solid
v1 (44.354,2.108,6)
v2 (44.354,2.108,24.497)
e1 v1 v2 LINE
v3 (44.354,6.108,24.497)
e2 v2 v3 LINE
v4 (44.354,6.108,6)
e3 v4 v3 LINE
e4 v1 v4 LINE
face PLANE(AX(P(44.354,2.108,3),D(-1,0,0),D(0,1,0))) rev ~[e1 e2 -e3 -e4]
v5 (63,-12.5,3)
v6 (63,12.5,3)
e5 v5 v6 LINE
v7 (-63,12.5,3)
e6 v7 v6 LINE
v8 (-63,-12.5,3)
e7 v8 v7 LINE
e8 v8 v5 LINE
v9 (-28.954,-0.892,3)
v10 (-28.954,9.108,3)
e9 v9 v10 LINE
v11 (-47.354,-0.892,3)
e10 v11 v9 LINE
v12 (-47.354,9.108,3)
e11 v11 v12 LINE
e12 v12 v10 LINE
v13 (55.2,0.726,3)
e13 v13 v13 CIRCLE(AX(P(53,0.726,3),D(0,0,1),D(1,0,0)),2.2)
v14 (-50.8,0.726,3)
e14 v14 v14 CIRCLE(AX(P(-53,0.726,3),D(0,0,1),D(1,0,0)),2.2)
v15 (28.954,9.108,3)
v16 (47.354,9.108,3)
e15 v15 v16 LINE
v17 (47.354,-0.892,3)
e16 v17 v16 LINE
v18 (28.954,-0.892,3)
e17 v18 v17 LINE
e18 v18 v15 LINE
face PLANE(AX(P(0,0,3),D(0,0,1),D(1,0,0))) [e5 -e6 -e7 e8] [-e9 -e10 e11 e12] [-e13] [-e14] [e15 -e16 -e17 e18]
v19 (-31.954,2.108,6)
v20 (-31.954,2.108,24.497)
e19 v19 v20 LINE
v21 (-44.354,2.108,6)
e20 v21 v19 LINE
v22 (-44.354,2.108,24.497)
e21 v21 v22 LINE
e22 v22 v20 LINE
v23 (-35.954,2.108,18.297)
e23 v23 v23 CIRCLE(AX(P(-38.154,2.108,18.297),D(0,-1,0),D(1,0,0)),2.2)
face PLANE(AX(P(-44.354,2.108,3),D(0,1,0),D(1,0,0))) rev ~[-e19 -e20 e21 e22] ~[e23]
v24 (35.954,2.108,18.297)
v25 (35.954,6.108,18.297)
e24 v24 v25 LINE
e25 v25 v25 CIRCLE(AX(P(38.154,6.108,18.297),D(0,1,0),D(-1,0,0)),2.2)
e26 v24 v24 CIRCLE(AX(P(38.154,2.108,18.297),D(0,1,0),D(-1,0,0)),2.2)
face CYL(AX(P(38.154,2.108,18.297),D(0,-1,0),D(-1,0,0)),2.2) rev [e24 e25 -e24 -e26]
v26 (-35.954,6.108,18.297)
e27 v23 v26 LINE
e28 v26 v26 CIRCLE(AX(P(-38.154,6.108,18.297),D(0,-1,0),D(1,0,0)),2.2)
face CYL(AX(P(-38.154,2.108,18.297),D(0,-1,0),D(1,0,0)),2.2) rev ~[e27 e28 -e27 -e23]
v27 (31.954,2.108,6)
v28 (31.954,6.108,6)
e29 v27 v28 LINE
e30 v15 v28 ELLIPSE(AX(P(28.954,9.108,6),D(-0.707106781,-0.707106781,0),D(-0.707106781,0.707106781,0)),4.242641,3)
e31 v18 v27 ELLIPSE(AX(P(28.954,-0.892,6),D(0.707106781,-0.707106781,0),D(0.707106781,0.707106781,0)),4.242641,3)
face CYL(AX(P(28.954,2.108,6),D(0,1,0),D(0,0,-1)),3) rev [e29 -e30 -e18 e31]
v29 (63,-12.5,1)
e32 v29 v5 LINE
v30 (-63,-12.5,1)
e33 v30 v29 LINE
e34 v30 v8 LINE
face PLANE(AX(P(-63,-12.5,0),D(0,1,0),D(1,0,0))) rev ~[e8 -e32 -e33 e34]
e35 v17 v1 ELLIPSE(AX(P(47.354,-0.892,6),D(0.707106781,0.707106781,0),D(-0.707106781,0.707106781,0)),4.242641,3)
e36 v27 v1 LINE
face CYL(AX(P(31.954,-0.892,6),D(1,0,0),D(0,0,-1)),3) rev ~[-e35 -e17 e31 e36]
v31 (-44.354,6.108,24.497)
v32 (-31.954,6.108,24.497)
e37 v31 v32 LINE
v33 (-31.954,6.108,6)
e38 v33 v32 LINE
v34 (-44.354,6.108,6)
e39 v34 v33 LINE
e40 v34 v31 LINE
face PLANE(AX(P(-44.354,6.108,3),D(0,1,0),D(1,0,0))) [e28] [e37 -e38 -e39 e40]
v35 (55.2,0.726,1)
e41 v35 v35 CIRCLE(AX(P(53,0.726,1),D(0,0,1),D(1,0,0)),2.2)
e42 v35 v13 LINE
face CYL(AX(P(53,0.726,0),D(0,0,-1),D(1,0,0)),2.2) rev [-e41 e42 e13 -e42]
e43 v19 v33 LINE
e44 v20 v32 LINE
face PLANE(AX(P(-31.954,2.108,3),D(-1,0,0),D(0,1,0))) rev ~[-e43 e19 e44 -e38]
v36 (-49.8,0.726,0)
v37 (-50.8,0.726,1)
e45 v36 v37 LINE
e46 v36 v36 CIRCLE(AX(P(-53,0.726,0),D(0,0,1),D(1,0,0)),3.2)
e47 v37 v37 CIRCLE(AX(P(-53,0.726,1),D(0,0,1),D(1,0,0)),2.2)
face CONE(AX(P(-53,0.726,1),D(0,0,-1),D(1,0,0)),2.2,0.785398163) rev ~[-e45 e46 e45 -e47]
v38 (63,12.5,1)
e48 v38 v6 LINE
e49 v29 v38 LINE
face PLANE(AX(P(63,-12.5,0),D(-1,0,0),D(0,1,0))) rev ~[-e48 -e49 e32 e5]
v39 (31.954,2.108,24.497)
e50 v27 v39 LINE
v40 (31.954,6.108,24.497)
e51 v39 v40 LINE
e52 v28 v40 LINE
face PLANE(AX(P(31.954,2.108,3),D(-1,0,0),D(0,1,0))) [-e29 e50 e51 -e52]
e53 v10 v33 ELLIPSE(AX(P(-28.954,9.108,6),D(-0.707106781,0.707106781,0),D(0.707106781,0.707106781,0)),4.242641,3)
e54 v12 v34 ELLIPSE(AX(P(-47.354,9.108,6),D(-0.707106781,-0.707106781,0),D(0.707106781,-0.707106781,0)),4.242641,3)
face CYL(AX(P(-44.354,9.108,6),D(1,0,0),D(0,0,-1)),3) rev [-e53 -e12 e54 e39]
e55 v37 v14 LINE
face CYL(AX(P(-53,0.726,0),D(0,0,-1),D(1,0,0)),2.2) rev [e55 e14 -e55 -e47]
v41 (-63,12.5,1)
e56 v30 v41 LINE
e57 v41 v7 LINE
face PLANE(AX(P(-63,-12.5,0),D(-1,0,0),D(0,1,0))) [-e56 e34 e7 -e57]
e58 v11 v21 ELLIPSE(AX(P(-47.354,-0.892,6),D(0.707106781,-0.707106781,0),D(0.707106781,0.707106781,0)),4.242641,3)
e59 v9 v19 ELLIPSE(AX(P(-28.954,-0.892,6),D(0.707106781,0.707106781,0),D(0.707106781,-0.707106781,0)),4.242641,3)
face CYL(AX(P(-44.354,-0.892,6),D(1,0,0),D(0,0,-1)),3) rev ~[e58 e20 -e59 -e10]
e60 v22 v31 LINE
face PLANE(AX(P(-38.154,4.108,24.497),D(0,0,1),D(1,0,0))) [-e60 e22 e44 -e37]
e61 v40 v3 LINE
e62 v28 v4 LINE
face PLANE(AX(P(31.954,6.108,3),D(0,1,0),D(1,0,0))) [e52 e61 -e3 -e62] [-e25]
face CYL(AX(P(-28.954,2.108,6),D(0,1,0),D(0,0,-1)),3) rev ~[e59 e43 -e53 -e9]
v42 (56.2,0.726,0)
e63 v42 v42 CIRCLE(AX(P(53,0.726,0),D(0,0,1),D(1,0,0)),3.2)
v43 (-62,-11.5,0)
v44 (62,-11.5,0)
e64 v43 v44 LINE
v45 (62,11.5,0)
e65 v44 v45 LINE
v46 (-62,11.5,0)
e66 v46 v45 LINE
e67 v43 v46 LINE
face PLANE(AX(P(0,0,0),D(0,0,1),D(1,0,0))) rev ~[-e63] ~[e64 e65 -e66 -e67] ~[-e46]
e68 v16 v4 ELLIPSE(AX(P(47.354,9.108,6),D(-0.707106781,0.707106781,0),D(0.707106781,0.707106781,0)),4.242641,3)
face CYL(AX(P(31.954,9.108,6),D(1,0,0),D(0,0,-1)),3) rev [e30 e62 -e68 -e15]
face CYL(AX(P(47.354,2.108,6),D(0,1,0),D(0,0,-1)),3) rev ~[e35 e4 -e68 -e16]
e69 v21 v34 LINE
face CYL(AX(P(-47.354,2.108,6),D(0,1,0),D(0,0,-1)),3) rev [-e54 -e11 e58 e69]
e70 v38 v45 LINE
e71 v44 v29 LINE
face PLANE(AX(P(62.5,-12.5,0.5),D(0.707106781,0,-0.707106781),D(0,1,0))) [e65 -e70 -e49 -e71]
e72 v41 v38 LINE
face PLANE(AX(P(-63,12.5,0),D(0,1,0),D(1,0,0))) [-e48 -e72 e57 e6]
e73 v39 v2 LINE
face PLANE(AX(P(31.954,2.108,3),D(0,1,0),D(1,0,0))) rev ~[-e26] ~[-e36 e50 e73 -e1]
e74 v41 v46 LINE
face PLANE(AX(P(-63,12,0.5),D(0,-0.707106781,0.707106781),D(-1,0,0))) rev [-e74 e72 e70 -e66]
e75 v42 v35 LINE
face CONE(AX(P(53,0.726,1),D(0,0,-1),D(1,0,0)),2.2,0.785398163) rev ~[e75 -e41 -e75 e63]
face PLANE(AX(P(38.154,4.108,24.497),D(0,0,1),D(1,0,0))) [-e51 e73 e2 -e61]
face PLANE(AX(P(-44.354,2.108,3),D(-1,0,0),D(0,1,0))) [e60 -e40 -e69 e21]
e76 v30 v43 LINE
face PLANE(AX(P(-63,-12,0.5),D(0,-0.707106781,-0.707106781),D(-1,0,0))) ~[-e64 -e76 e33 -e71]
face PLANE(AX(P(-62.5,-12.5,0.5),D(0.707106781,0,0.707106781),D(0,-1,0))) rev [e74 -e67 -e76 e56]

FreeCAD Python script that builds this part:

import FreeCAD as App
import Part
import Sketcher
from FreeCAD import Vector


def edges_at(feature, points):
    """Names of the edges that pass closest to the given points."""
    edges = feature.Shape.Edges
    near = lambda p: min(range(len(edges)), key=lambda i: edges[i].distToShape(Part.Vertex(*p))[0])
    return sorted({f"Edge{near(p) + 1}" for p in points})

doc = App.newDocument("Part")
body = doc.addObject("PartDesign::Body", "Body")

# Sketch on XY plane
sketch1 = body.newObject("Sketcher::SketchObject", "Sketch")
sketch1.AttachmentSupport = (doc.getObject("XY_Plane"), [""])
sketch1.MapMode = "FlatFace"
sketch1.addGeometry(Part.LineSegment(Vector(-63, 12.5, 0), Vector(-63, -12.5, 0)), False)
sketch1.addGeometry(Part.LineSegment(Vector(-63, -12.5, 0), Vector(63, -12.5, 0)), False)
sketch1.addGeometry(Part.LineSegment(Vector(63, -12.5, 0), Vector(63, 12.5, 0)), False)
sketch1.addGeometry(Part.LineSegment(Vector(63, 12.5, 0), Vector(-63, 12.5, 0)), False)
sketch1.addGeometry(Part.Circle(Vector(-53, 0.7, 0), Vector(0, 0, 1), 2.2), False)
sketch1.addGeometry(Part.Circle(Vector(53, 0.7, 0), Vector(0, 0, 1), 2.2), False)
sketch1.addConstraint(Sketcher.Constraint("Coincident", 0, 2, 1, 1))
sketch1.addConstraint(Sketcher.Constraint("Coincident", 1, 2, 2, 1))
sketch1.addConstraint(Sketcher.Constraint("Coincident", 2, 2, 3, 1))
sketch1.addConstraint(Sketcher.Constraint("Coincident", 3, 2, 0, 1))
sketch1.addConstraint(Sketcher.Constraint("Vertical", 0))
sketch1.addConstraint(Sketcher.Constraint("Horizontal", 1))
sketch1.addConstraint(Sketcher.Constraint("Vertical", 2))
sketch1.addConstraint(Sketcher.Constraint("Horizontal", 3))
sketch1.addConstraint(Sketcher.Constraint("Equal", 4, 5))
sketch1.addConstraint(Sketcher.Constraint("Symmetric", 0, 2, 2, 2, -1, 1))
sketch1.addConstraint(Sketcher.Constraint("Symmetric", 4, 3, 5, 3, -2))
sketch1.addConstraint(Sketcher.Constraint("Diameter", 4, 4.4))
sketch1.addConstraint(Sketcher.Constraint("DistanceX", 1, 1, 1, 2, 126.0))
sketch1.addConstraint(Sketcher.Constraint("DistanceY", 0, 2, 0, 1, 25.0))
sketch1.addConstraint(Sketcher.Constraint("DistanceX", 4, 3, -1, 1, 53.0))
sketch1.addConstraint(Sketcher.Constraint("DistanceY", -1, 1, 4, 3, 0.726))
pad1 = body.newObject("PartDesign::Pad", "Pad")
pad1.Profile = sketch1
pad1.Length = 3

# Sketch on XY plane
sketch2 = body.newObject("Sketcher::SketchObject", "Sketch001")
sketch2.AttachmentSupport = (doc.getObject("XY_Plane"), [""])
sketch2.MapMode = "FlatFace"
sketch2.AttachmentOffset = App.Placement(Vector(0, 0, 3), App.Rotation())
sketch2.addGeometry(Part.LineSegment(Vector(-44.4, 6.1, 0), Vector(-44.4, 2.1, 0)), False)
sketch2.addGeometry(Part.LineSegment(Vector(-44.4, 2.1, 0), Vector(-32, 2.1, 0)), False)
sketch2.addGeometry(Part.LineSegment(Vector(-32, 2.1, 0), Vector(-32, 6.1, 0)), False)
sketch2.addGeometry(Part.LineSegment(Vector(-32, 6.1, 0), Vector(-44.4, 6.1, 0)), False)
sketch2.addGeometry(Part.LineSegment(Vector(32, 6.1, 0), Vector(32, 2.1, 0)), False)
sketch2.addGeometry(Part.LineSegment(Vector(32, 2.1, 0), Vector(44.4, 2.1, 0)), False)
sketch2.addGeometry(Part.LineSegment(Vector(44.4, 2.1, 0), Vector(44.4, 6.1, 0)), False)
sketch2.addGeometry(Part.LineSegment(Vector(44.4, 6.1, 0), Vector(32, 6.1, 0)), False)
sketch2.addConstraint(Sketcher.Constraint("Coincident", 0, 2, 1, 1))
sketch2.addConstraint(Sketcher.Constraint("Coincident", 1, 2, 2, 1))
sketch2.addConstraint(Sketcher.Constraint("Coincident", 2, 2, 3, 1))
sketch2.addConstraint(Sketcher.Constraint("Coincident", 3, 2, 0, 1))
sketch2.addConstraint(Sketcher.Constraint("Coincident", 4, 2, 5, 1))
sketch2.addConstraint(Sketcher.Constraint("Coincident", 5, 2, 6, 1))
sketch2.addConstraint(Sketcher.Constraint("Coincident", 6, 2, 7, 1))
sketch2.addConstraint(Sketcher.Constraint("Coincident", 7, 2, 4, 1))
sketch2.addConstraint(Sketcher.Constraint("Vertical", 0))
sketch2.addConstraint(Sketcher.Constraint("Horizontal", 1))
sketch2.addConstraint(Sketcher.Constraint("Vertical", 2))
sketch2.addConstraint(Sketcher.Constraint("Horizontal", 3))
sketch2.addConstraint(Sketcher.Constraint("Vertical", 4))
sketch2.addConstraint(Sketcher.Constraint("Horizontal", 5))
sketch2.addConstraint(Sketcher.Constraint("Vertical", 6))
sketch2.addConstraint(Sketcher.Constraint("Horizontal", 7))
sketch2.addConstraint(Sketcher.Constraint("Symmetric", 1, 2, 4, 2, -2))
sketch2.addConstraint(Sketcher.Constraint("Symmetric", 3, 2, 6, 2, -2))
sketch2.addConstraint(Sketcher.Constraint("DistanceY", 0, 2, 0, 1, 4.0))
sketch2.addConstraint(Sketcher.Constraint("DistanceX", 1, 1, 1, 2, 12.4))
sketch2.addConstraint(Sketcher.Constraint("DistanceX", 0, 2, -1, 1, 44.354))
sketch2.addConstraint(Sketcher.Constraint("DistanceY", -1, 1, 0, 2, 2.108))
pad2 = body.newObject("PartDesign::Pad", "Pad001")
pad2.Profile = sketch2
pad2.Length = 21.497

# Sketch on XZ plane
sketch3 = body.newObject("Sketcher::SketchObject", "Sketch002")
sketch3.AttachmentSupport = (doc.getObject("XZ_Plane"), [""])
sketch3.MapMode = "FlatFace"
sketch3.AttachmentOffset = App.Placement(Vector(0, 0, -2.108), App.Rotation())
sketch3.addGeometry(Part.Circle(Vector(-38.2, 18.3, 0), Vector(0, 0, 1), 2.2), False)
sketch3.addConstraint(Sketcher.Constraint("Diameter", 0, 4.4))
sketch3.addConstraint(Sketcher.Constraint("DistanceX", 0, 3, -1, 1, 38.154))
sketch3.addConstraint(Sketcher.Constraint("DistanceY", -1, 1, 0, 3, 18.297))
pocket1 = body.newObject("PartDesign::Pocket", "Pocket")
pocket1.Profile = sketch3
pocket1.Length = 4
doc.recompute()

mirrored = body.newObject("PartDesign::Mirrored", "Mirrored")
mirrored.Originals = [pocket1]
mirrored.MirrorPlane = (doc.getObject("YZ_Plane"), [""])
body.Tip = mirrored
doc.recompute()

chamfer = body.newObject("PartDesign::Chamfer", "Chamfer")
chamfer.Base = (mirrored, edges_at(mirrored, [
    (0, 12.5, 0),
    (63, 0, 0),
    (0, -12.5, 0),
    (-63, 0, 0),
    (50.8, 0.726, 0),
    (-55.2, 0.726, 0),
]))
chamfer.Size = 1
doc.recompute()

fillet = body.newObject("PartDesign::Fillet", "Fillet")
fillet.Base = (chamfer, edges_at(chamfer, [
    (31.954, 4.108, 3),
    (38.154, 6.108, 3),
    (44.354, 4.108, 3),
    (38.154, 2.108, 3),
    (-38.154, 2.108, 3),
    (-31.954, 4.108, 3),
    (-38.154, 6.108, 3),
    (-44.354, 4.108, 3),
]))
fillet.Radius = 3

doc.recompute()
